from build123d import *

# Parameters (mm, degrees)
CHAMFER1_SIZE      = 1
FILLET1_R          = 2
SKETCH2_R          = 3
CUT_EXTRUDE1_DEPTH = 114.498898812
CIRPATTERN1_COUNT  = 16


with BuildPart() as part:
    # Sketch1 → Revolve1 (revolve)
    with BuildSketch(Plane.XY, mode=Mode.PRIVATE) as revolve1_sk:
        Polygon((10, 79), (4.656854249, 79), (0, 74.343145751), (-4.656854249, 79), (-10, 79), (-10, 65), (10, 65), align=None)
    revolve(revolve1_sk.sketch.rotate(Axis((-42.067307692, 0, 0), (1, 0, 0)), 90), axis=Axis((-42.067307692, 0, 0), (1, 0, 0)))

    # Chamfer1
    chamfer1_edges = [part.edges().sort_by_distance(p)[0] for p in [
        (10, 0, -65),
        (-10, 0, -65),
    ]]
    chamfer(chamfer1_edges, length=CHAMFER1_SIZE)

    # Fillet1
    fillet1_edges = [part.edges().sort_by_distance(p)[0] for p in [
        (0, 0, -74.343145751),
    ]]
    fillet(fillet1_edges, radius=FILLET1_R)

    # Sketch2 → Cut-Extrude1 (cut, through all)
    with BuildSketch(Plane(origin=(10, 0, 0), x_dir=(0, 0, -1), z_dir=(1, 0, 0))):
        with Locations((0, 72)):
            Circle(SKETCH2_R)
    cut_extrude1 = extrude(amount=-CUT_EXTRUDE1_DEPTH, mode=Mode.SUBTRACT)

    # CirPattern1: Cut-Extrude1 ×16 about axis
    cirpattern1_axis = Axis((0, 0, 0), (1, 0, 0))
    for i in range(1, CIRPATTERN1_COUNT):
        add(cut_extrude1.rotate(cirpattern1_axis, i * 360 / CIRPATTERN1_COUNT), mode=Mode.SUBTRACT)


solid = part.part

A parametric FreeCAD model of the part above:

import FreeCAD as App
import Part
import Sketcher
from FreeCAD import Vector


def edges_at(feature, points):
    """Names of the edges that pass closest to the given points."""
    edges = feature.Shape.Edges
    near = lambda p: min(range(len(edges)), key=lambda i: edges[i].distToShape(Part.Vertex(*p))[0])
    return sorted({f"Edge{near(p) + 1}" for p in points})


def add_polygon(sketch, points):
    """Adds a closed chain of lines whose ends are joined by coincident constraints."""
    first, n = sketch.GeometryCount, len(points)
    for a, b in zip(points, points[1:] + points[:1]):
        sketch.addGeometry(Part.LineSegment(App.Vector(*a, 0), App.Vector(*b, 0)), False)
    for i in range(n):
        sketch.addConstraint(Sketcher.Constraint("Coincident", first + i, 2, first + (i + 1) % n, 1))

doc = App.newDocument("Part")
body = doc.addObject("PartDesign::Body", "Body")

# Sketch on XY plane
sketch1 = body.newObject("Sketcher::SketchObject", "Sketch")
sketch1.AttachmentSupport = (doc.getObject("XY_Plane"), [""])
sketch1.MapMode = "FlatFace"
add_polygon(sketch1, [(10, 79), (5, 79), (0, 74), (-5, 79), (-10, 79), (-10, 65), (10, 65)])  # lines 0-6
sketch1.addConstraint([
    Sketcher.Constraint("Horizontal", 0),
    Sketcher.Constraint("Horizontal", 3),
    Sketcher.Constraint("Vertical", 4),
    Sketcher.Constraint("Horizontal", 5),
    Sketcher.Constraint("Vertical", 6),
    Sketcher.Constraint("Symmetric", 0, 2, 2, 2, -2),
    Sketcher.Constraint("PointOnObject", 1, 2, -2),
    Sketcher.Constraint("Perpendicular", 1, 2),
    Sketcher.Constraint("Equal", 0, 3),
    Sketcher.Constraint("DistanceX", 5, 1, 5, 2, 20.0),
    Sketcher.Constraint("DistanceY", 4, 2, 4, 1, 14.0),
    Sketcher.Constraint("DistanceY", -1, 1, 0, 2, 79.0),
    Sketcher.Constraint("DistanceX", 0, 2, 0, 1, 5.343146),
])
revolution = body.newObject("PartDesign::Revolution", "Revolution")
revolution.Profile = sketch1
revolution.ReferenceAxis = (sketch1, ["H_Axis"])
revolution.Angle = 360
doc.recompute()

chamfer = body.newObject("PartDesign::Chamfer", "Chamfer")
chamfer.Base = (revolution, edges_at(revolution, [(10, 0, -65), (-10, 0, -65)]))
chamfer.Size = 1
doc.recompute()

fillet = body.newObject("PartDesign::Fillet", "Fillet")
fillet.Base = (chamfer, edges_at(chamfer, [(0, 0, -74.343)]))
fillet.Radius = 2

# Sketch on YZ plane
sketch2 = body.newObject("Sketcher::SketchObject", "Sketch001")
sketch2.AttachmentSupport = (doc.getObject("YZ_Plane"), [""])
sketch2.MapMode = "FlatFace"
sketch2.AttachmentOffset = App.Placement(Vector(0, 0, 10), App.Rotation())
sketch2.addGeometry(Part.Circle(Vector(72, 0, 0), Vector(0, 0, 1), 3), False)
sketch2.addConstraint([
    Sketcher.Constraint("PointOnObject", 0, 3, -1),
    Sketcher.Constraint("Diameter", 0, 6.0),
    Sketcher.Constraint("DistanceX", -1, 1, 0, 3, 72.0),
])
pocket1 = body.newObject("PartDesign::Pocket", "Pocket")
pocket1.Profile = sketch2
pocket1.Type = "ThroughAll"
doc.recompute()

polarpattern = body.newObject("PartDesign::PolarPattern", "PolarPattern")
polarpattern.Originals = [pocket1]
polarpattern.Axis = (doc.getObject("X_Axis"), [""])
polarpattern.Angle = 360
polarpattern.Occurrences = 16
body.Tip = polarpattern

doc.recompute()
